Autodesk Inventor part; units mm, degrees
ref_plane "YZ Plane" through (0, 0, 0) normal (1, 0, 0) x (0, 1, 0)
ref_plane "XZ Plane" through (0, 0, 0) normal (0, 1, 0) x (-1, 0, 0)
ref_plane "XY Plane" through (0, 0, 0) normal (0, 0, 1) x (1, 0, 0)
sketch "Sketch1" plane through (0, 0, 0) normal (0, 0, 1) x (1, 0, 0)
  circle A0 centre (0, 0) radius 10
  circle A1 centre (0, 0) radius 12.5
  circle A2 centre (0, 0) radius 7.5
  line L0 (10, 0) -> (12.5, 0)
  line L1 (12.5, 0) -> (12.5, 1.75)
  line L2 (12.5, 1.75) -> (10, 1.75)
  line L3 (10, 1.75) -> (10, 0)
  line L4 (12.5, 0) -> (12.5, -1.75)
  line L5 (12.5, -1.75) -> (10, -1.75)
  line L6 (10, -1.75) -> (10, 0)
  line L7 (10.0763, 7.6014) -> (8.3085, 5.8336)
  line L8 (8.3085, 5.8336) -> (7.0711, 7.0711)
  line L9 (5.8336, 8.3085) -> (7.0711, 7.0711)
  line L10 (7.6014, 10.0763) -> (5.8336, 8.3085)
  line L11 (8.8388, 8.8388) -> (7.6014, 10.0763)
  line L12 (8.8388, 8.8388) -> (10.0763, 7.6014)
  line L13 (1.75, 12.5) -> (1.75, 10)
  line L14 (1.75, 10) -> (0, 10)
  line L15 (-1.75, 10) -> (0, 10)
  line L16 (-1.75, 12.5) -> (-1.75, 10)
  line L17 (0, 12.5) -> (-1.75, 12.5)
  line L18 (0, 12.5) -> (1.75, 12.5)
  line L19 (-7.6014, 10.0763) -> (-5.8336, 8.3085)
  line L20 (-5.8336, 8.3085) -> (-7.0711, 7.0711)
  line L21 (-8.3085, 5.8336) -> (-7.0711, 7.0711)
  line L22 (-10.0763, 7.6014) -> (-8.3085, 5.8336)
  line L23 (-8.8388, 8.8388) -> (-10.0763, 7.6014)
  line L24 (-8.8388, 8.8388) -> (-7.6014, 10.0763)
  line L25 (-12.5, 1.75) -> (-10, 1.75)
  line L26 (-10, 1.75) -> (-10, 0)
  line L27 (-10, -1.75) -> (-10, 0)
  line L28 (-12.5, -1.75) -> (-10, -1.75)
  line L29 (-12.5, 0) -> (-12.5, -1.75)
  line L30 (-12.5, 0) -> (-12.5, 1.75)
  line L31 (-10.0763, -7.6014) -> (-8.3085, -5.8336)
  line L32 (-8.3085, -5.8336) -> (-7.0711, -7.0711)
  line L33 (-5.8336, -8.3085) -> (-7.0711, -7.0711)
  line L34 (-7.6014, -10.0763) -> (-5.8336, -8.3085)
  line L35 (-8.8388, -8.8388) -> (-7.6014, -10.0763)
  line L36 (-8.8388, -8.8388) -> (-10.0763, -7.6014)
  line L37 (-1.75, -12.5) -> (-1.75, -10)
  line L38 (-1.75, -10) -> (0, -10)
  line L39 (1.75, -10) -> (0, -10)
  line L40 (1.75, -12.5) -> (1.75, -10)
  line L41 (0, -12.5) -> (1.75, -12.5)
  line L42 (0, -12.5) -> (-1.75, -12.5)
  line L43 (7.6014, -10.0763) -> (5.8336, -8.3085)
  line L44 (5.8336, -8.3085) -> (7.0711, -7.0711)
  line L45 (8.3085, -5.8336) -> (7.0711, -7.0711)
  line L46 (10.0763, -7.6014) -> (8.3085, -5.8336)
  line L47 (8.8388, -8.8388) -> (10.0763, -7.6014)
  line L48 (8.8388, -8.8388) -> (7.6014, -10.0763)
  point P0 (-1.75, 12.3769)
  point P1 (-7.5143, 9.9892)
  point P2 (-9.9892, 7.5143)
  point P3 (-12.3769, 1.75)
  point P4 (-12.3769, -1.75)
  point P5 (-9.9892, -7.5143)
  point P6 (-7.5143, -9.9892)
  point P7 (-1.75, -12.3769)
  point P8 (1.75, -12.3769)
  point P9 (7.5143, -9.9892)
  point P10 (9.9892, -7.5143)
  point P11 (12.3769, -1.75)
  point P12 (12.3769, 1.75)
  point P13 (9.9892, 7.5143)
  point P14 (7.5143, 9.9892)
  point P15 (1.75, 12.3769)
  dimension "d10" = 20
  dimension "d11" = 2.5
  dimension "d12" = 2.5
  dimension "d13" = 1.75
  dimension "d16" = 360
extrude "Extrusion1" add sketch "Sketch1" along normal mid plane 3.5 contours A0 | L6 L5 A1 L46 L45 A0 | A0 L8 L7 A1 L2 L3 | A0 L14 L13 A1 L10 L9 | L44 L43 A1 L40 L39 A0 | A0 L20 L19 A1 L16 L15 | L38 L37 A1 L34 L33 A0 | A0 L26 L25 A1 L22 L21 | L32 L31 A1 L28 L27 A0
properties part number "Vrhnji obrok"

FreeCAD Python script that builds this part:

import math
import FreeCAD as App
import Part
import Sketcher

V = App.Vector

doc = App.newDocument("Part")
body = doc.addObject("PartDesign::Body", "Body")

# Sketch on XY plane
sketch1 = body.newObject("Sketcher::SketchObject", "Sketch")
sketch1.AttachmentSupport = (doc.getObject("XY_Plane"), [""])
sketch1.MapMode = "FlatFace"
sketch1.addGeometry([
    Part.LineSegment(V(10, -1.8, 0), V(10, 1.8, 0)),  # 0
    Part.LineSegment(V(10, 1.8, 0), V(12.4, 1.8, 0)),  # 1
    Part.ArcOfCircle(Part.Circle(V(0, 0, 0), V(0, 0, 1), 12.5), math.radians(8), math.radians(37)),  # 2
    Part.LineSegment(V(10, 7.5, 0), V(8.3, 5.8, 0)),  # 3
    Part.LineSegment(V(8.3, 5.8, 0), V(7.1, 7.1, 0)),  # 4
    Part.LineSegment(V(7.1, 7.1, 0), V(5.8, 8.3, 0)),  # 5
    Part.LineSegment(V(5.8, 8.3, 0), V(7.5, 10, 0)),  # 6
    Part.ArcOfCircle(Part.Circle(V(0, 0, 0), V(0, 0, 1), 12.5), math.radians(53), math.radians(82)),  # 7
    Part.LineSegment(V(1.8, 12.4, 0), V(1.8, 10, 0)),  # 8
    Part.LineSegment(V(1.8, 10, 0), V(-1.8, 10, 0)),  # 9
    Part.LineSegment(V(-1.8, 10, 0), V(-1.8, 12.4, 0)),  # 10
    Part.ArcOfCircle(Part.Circle(V(0, 0, 0), V(0, 0, 1), 12.5), math.radians(98), math.radians(127)),  # 11
    Part.LineSegment(V(-7.5, 10, 0), V(-5.8, 8.3, 0)),  # 12
    Part.LineSegment(V(-5.8, 8.3, 0), V(-7.1, 7.1, 0)),  # 13
    Part.LineSegment(V(-7.1, 7.1, 0), V(-8.3, 5.8, 0)),  # 14
    Part.LineSegment(V(-8.3, 5.8, 0), V(-10, 7.5, 0)),  # 15
    Part.ArcOfCircle(Part.Circle(V(0, 0, 0), V(0, 0, 1), 12.5), math.radians(143), math.radians(172)),  # 16
    Part.LineSegment(V(-12.4, 1.8, 0), V(-10, 1.8, 0)),  # 17
    Part.LineSegment(V(-10, 1.8, 0), V(-10, -1.8, 0)),  # 18
    Part.LineSegment(V(-10, -1.8, 0), V(-12.4, -1.8, 0)),  # 19
    Part.ArcOfCircle(Part.Circle(V(0, 0, 0), V(0, 0, 1), 12.5), math.radians(-172), math.radians(-143)),  # 20
    Part.LineSegment(V(-10, -7.5, 0), V(-8.3, -5.8, 0)),  # 21
    Part.LineSegment(V(-8.3, -5.8, 0), V(-7.1, -7.1, 0)),  # 22
    Part.LineSegment(V(-7.1, -7.1, 0), V(-5.8, -8.3, 0)),  # 23
    Part.LineSegment(V(-5.8, -8.3, 0), V(-7.5, -10, 0)),  # 24
    Part.ArcOfCircle(Part.Circle(V(0, 0, 0), V(0, 0, 1), 12.5), math.radians(-127), math.radians(-98)),  # 25
    Part.LineSegment(V(-1.8, -12.4, 0), V(-1.8, -10, 0)),  # 26
    Part.LineSegment(V(-1.8, -10, 0), V(1.8, -10, 0)),  # 27
    Part.LineSegment(V(1.8, -10, 0), V(1.8, -12.4, 0)),  # 28
    Part.ArcOfCircle(Part.Circle(V(0, 0, 0), V(0, 0, 1), 12.5), math.radians(-82), math.radians(-53)),  # 29
    Part.LineSegment(V(7.5, -10, 0), V(5.8, -8.3, 0)),  # 30
    Part.LineSegment(V(5.8, -8.3, 0), V(7.1, -7.1, 0)),  # 31
    Part.LineSegment(V(7.1, -7.1, 0), V(8.3, -5.8, 0)),  # 32
    Part.LineSegment(V(8.3, -5.8, 0), V(10, -7.5, 0)),  # 33
    Part.ArcOfCircle(Part.Circle(V(0, 0, 0), V(0, 0, 1), 12.5), math.radians(-37), math.radians(-8)),  # 34
    Part.LineSegment(V(12.4, -1.8, 0), V(10, -1.8, 0)),  # 35
    Part.Circle(V(0, 0, 0), V(0, 0, 1), 7.5),  # 36
], False)
sketch1.addConstraint([
    Sketcher.Constraint("Coincident", 0, 2, 1, 1),
    Sketcher.Constraint("Coincident", 1, 2, 2, 1),
    Sketcher.Constraint("Coincident", 2, 2, 3, 1),
    Sketcher.Constraint("Coincident", 3, 2, 4, 1),
    Sketcher.Constraint("Coincident", 4, 2, 5, 1),
    Sketcher.Constraint("Coincident", 5, 2, 6, 1),
    Sketcher.Constraint("Coincident", 6, 2, 7, 1),
    Sketcher.Constraint("Coincident", 7, 2, 8, 1),
    Sketcher.Constraint("Coincident", 8, 2, 9, 1),
    Sketcher.Constraint("Coincident", 9, 2, 10, 1),
    Sketcher.Constraint("Coincident", 10, 2, 11, 1),
    Sketcher.Constraint("Coincident", 11, 2, 12, 1),
    Sketcher.Constraint("Coincident", 12, 2, 13, 1),
    Sketcher.Constraint("Coincident", 13, 2, 14, 1),
    Sketcher.Constraint("Coincident", 14, 2, 15, 1),
    Sketcher.Constraint("Coincident", 15, 2, 16, 1),
    Sketcher.Constraint("Coincident", 16, 2, 17, 1),
    Sketcher.Constraint("Coincident", 17, 2, 18, 1),
    Sketcher.Constraint("Coincident", 18, 2, 19, 1),
    Sketcher.Constraint("Coincident", 19, 2, 20, 1),
    Sketcher.Constraint("Coincident", 20, 2, 21, 1),
    Sketcher.Constraint("Coincident", 21, 2, 22, 1),
    Sketcher.Constraint("Coincident", 22, 2, 23, 1),
    Sketcher.Constraint("Coincident", 23, 2, 24, 1),
    Sketcher.Constraint("Coincident", 24, 2, 25, 1),
    Sketcher.Constraint("Coincident", 25, 2, 26, 1),
    Sketcher.Constraint("Coincident", 26, 2, 27, 1),
    Sketcher.Constraint("Coincident", 27, 2, 28, 1),
    Sketcher.Constraint("Coincident", 28, 2, 29, 1),
    Sketcher.Constraint("Coincident", 29, 2, 30, 1),
    Sketcher.Constraint("Coincident", 30, 2, 31, 1),
    Sketcher.Constraint("Coincident", 31, 2, 32, 1),
    Sketcher.Constraint("Coincident", 32, 2, 33, 1),
    Sketcher.Constraint("Coincident", 33, 2, 34, 1),
    Sketcher.Constraint("Coincident", 34, 2, 35, 1),
    Sketcher.Constraint("Coincident", 35, 2, 0, 1),
    Sketcher.Constraint("Vertical", 0),
    Sketcher.Constraint("Horizontal", 1),
    Sketcher.Constraint("Vertical", 8),
    Sketcher.Constraint("Horizontal", 9),
    Sketcher.Constraint("Vertical", 10),
    Sketcher.Constraint("Horizontal", 17),
    Sketcher.Constraint("Vertical", 18),
    Sketcher.Constraint("Horizontal", 19),
    Sketcher.Constraint("Vertical", 26),
    Sketcher.Constraint("Horizontal", 27),
    Sketcher.Constraint("Vertical", 28),
    Sketcher.Constraint("Horizontal", 35),
    Sketcher.Constraint("Coincident", 2, 3, -1, 1),
    Sketcher.Constraint("Coincident", 7, 3, -1, 1),
    Sketcher.Constraint("Coincident", 11, 3, -1, 1),
    Sketcher.Constraint("Coincident", 16, 3, -1, 1),
    Sketcher.Constraint("Coincident", 20, 3, -1, 1),
    Sketcher.Constraint("Coincident", 25, 3, -1, 1),
    Sketcher.Constraint("Coincident", 29, 3, -1, 1),
    Sketcher.Constraint("Coincident", 34, 3, -1, 1),
    Sketcher.Constraint("Coincident", 36, 3, -1, 1),
    Sketcher.Constraint("Equal", 2, 7),
    Sketcher.Constraint("Equal", 7, 11),
    Sketcher.Constraint("Equal", 11, 16),
    Sketcher.Constraint("Equal", 16, 20),
    Sketcher.Constraint("Equal", 20, 25),
    Sketcher.Constraint("Equal", 25, 29),
    Sketcher.Constraint("Equal", 29, 34),
    Sketcher.Constraint("Symmetric", 0, 2, 18, 2, -1, 1),
    Sketcher.Constraint("Symmetric", 3, 2, 21, 2, -1, 1),
    Sketcher.Constraint("Symmetric", 4, 2, 22, 2, -1, 1),
    Sketcher.Constraint("Symmetric", 5, 2, 23, 2, -1, 1),
    Sketcher.Constraint("Symmetric", 8, 2, 26, 2, -1, 1),
    Sketcher.Constraint("Symmetric", 12, 2, 30, 2, -1, 1),
    Sketcher.Constraint("Symmetric", 13, 2, 31, 2, -1, 1),
    Sketcher.Constraint("Symmetric", 14, 2, 32, 2, -1, 1),
    Sketcher.Constraint("Symmetric", 5, 2, 12, 2, -2),
    Sketcher.Constraint("Symmetric", 4, 2, 13, 2, -2),
    Sketcher.Constraint("Symmetric", 3, 2, 14, 2, -2),
    Sketcher.Constraint("Perpendicular", 3, 4),
    Sketcher.Constraint("Parallel", 4, 5),
    Sketcher.Constraint("Perpendicular", 5, 6),
    Sketcher.Constraint("Perpendicular", 6, 12),
    Sketcher.Constraint("Perpendicular", 12, 13),
    Sketcher.Constraint("Perpendicular", 14, 15),
    Sketcher.Constraint("Perpendicular", 15, 21),
    Sketcher.Constraint("Perpendicular", 23, 24),
    Sketcher.Constraint("Perpendicular", 24, 30),
    Sketcher.Constraint("Perpendicular", 32, 33),
    Sketcher.Constraint("Horizontal", 7, 2, 10, 2),
    Sketcher.Constraint("Horizontal", 1, 2, 16, 2),
    Sketcher.Constraint("Horizontal", 25, 2, 28, 2),
    Sketcher.Constraint("Horizontal", 19, 2, 34, 2),
    Sketcher.Constraint("Equal", 27, 0),
    Sketcher.Constraint("Equal", 35, 8),
    Sketcher.Constraint("Equal", 4, 5),
    Sketcher.Constraint("Equal", 3, 6),
    Sketcher.Constraint("Diameter", 36, 15.0),
    Sketcher.Constraint("Radius", 2, 12.5),
    Sketcher.Constraint("Distance", 4, 1.75),
    Sketcher.Constraint("DistanceY", -1, 1, 0, 2, 1.75),
    Sketcher.Constraint("DistanceX", -1, 1, 0, 2, 10.0),
    Sketcher.Constraint("Distance", 3, 2.377),
])
pad1 = body.newObject("PartDesign::Pad", "Pad")
pad1.Profile = sketch1
pad1.Length = 3.5
pad1.Midplane = True

doc.recompute()
